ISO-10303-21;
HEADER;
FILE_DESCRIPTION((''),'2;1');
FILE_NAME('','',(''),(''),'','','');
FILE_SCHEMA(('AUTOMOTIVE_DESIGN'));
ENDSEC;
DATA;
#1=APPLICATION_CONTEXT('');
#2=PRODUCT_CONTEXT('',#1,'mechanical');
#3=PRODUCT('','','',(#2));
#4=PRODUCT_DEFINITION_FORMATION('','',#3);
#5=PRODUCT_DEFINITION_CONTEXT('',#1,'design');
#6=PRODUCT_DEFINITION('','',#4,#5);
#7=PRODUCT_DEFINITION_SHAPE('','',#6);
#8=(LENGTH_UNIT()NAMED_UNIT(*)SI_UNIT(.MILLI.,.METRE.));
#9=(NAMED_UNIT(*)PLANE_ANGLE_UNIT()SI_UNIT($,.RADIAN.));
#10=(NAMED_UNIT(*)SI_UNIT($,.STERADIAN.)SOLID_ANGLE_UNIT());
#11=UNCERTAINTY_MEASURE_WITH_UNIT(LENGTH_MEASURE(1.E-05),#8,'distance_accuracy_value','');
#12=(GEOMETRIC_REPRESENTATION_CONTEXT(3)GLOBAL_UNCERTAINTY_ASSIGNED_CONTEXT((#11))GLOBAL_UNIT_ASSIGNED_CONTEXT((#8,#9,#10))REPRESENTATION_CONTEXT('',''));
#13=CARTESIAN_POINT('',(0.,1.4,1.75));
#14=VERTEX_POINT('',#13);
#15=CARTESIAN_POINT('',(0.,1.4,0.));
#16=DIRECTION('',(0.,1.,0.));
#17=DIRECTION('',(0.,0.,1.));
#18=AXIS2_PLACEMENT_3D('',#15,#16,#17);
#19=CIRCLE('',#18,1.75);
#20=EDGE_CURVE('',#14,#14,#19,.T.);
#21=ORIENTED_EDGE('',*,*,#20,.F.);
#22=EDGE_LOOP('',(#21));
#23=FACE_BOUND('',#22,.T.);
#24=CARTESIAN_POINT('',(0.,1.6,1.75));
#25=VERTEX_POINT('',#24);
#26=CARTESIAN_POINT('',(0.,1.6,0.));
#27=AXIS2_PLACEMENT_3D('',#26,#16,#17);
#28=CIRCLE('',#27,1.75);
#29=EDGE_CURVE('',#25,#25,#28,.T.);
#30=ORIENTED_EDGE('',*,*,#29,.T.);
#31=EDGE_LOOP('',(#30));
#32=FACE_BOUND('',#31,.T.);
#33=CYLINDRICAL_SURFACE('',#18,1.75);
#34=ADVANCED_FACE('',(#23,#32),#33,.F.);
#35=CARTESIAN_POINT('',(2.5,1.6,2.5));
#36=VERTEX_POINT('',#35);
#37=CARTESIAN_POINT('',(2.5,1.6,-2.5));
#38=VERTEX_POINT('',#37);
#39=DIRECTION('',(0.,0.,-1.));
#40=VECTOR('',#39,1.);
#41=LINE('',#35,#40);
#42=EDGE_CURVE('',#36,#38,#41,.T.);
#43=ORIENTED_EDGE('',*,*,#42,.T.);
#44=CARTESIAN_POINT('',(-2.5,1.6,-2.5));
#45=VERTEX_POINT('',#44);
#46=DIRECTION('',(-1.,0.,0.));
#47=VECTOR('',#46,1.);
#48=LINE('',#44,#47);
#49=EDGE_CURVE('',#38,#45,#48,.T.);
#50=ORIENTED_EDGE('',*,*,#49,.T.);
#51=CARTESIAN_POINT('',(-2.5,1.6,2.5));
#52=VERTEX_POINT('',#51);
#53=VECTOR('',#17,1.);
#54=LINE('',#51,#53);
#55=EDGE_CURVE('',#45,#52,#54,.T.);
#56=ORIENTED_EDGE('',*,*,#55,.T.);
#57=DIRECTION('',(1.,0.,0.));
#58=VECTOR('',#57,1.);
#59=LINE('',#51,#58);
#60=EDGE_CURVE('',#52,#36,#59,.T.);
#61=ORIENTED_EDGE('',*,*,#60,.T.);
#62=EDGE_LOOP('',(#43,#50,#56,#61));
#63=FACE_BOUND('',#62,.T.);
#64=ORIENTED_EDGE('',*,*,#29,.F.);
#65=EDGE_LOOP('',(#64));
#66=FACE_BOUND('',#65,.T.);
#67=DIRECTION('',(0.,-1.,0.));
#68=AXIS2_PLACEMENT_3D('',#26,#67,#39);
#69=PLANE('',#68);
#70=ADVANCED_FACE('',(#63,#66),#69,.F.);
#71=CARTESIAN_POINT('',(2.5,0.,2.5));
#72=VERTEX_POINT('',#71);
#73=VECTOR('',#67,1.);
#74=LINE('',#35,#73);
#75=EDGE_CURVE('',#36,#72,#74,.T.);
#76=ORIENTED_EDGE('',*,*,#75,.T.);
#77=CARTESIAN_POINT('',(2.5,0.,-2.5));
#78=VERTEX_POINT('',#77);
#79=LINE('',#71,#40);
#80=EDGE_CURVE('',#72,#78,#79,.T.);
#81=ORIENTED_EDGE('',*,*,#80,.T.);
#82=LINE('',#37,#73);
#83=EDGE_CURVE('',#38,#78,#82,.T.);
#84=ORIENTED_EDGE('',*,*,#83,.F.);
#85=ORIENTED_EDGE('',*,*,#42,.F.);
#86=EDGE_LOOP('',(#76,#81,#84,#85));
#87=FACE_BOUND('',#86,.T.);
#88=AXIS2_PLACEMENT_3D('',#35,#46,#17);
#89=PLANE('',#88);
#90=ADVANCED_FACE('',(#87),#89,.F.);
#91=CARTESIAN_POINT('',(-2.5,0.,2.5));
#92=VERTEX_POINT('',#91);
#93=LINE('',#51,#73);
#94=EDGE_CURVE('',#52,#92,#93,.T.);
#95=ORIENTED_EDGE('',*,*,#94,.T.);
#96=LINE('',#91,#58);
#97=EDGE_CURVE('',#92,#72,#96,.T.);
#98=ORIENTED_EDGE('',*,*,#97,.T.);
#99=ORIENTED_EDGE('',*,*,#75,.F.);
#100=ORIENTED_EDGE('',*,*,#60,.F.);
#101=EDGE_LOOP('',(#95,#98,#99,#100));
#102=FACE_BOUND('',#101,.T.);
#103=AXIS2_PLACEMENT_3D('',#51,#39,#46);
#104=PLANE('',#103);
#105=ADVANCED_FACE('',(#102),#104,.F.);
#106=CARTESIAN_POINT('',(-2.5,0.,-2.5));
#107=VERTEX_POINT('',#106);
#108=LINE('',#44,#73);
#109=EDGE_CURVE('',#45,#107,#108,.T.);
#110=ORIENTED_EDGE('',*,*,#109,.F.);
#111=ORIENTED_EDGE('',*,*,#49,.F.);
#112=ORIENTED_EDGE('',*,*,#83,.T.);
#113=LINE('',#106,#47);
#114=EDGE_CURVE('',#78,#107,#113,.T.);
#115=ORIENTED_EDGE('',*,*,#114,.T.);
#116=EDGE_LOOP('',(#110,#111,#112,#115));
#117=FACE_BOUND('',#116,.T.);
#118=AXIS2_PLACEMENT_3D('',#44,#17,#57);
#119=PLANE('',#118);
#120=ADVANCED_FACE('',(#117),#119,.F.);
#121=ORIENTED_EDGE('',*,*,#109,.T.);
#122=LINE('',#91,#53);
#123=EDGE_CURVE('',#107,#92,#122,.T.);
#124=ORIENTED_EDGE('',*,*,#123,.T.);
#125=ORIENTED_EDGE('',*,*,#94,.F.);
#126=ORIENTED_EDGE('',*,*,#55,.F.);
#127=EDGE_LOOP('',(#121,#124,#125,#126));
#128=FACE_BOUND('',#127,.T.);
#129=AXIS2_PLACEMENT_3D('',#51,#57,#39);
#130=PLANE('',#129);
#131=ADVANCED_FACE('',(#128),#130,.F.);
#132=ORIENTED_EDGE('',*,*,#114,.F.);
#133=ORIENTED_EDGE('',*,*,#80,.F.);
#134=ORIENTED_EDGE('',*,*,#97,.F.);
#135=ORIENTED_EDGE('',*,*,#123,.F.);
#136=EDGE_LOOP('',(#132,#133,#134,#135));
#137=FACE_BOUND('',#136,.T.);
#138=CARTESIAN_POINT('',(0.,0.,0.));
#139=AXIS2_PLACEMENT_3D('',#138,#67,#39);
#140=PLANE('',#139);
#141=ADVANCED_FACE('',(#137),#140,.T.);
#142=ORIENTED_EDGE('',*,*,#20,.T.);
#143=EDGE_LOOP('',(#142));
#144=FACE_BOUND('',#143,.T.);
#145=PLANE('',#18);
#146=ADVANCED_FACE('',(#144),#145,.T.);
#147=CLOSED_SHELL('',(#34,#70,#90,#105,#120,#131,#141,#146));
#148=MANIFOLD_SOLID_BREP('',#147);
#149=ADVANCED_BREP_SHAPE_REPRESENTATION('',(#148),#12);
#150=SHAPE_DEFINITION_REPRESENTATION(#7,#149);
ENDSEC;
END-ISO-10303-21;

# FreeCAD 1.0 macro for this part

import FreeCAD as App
import Part
import Sketcher

V = App.Vector
Q = App.Units.Quantity


def add_polygon(sketch, points):
    """Adds a closed chain of lines whose ends are joined by coincident constraints."""
    first, n = sketch.GeometryCount, len(points)
    for a, b in zip(points, points[1:] + points[:1]):
        sketch.addGeometry(Part.LineSegment(App.Vector(*a, 0), App.Vector(*b, 0)), False)
    for i in range(n):
        sketch.addConstraint(Sketcher.Constraint("Coincident", first + i, 2, first + (i + 1) % n, 1))

doc = App.newDocument("Part")
body = doc.addObject("PartDesign::Body", "Body")

# Sketch on XZ plane
sketch1 = body.newObject("Sketcher::SketchObject", "Sketch")
sketch1.AttachmentSupport = (doc.getObject("XZ_Plane"), [""])
sketch1.MapMode = "FlatFace"
add_polygon(sketch1, [(-2, -2), (-2, 2), (2, 2), (2, -2)])  # lines 0-3
sketch1.addConstraint([
    Sketcher.Constraint("Vertical", 0),
    Sketcher.Constraint("Horizontal", 1),
    Sketcher.Constraint("Vertical", 2),
    Sketcher.Constraint("Horizontal", 3),
    Sketcher.Constraint("Symmetric", 0, 2, 2, 2, -1, 1),
    Sketcher.Constraint("Equal", 3, 0),
    Sketcher.Constraint("DistanceX", 1, 1, 1, 2, Q("5 mm")),
])
pad1 = body.newObject("PartDesign::Pad", "Pad")
pad1.Profile = sketch1
pad1.Length = 1.6
pad1.Reversed = True

# Sketch on XZ plane
sketch2 = body.newObject("Sketcher::SketchObject", "Sketch001")
sketch2.AttachmentSupport = (doc.getObject("XZ_Plane"), [""])
sketch2.MapMode = "FlatFace"
sketch2.AttachmentOffset = App.Placement(V(0, 0, -1.6), App.Rotation())
sketch2.addGeometry(Part.Circle(V(0, 0, 0), V(0, 0, 1), 1.8), False)
sketch2.addConstraint([
    Sketcher.Constraint("Coincident", 0, 3, -1, 1),
    Sketcher.Constraint("Diameter", 0, Q("3.5 mm")),
])
pocket1 = body.newObject("PartDesign::Pocket", "Pocket")
pocket1.Profile = sketch2
pocket1.Length = 0.2
pocket1.Reversed = True

doc.recompute()
